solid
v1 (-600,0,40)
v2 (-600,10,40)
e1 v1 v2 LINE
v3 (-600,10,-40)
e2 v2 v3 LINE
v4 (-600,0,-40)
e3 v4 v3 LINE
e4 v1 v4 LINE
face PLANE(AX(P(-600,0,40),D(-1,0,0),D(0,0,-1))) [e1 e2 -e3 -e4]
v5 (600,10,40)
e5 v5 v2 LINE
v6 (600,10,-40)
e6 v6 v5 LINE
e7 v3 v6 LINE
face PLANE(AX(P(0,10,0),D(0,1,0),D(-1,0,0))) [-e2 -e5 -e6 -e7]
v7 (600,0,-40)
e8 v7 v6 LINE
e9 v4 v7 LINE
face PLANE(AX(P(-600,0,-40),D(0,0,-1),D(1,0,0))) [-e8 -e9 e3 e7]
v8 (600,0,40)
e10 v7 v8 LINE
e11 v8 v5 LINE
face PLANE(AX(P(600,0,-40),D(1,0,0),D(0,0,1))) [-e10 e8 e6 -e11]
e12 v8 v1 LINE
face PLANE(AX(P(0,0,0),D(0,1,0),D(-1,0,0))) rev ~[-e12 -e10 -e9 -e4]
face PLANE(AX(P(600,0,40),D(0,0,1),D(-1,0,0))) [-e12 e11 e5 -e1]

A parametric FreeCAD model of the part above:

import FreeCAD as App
import Part
import Sketcher
Q = App.Units.Quantity

doc = App.newDocument("Part")
params = doc.addObject("Spreadsheet::Sheet", "Params")
for row, (alias, value) in enumerate([
    ("sketch1_width", "1200 mm"),
    ("sketch1_height", "80 mm"),
    ("pad1_length", "10 mm"),
], start=1):
    params.set(f"A{row}", alias)
    params.set(f"B{row}", "=" + value)
    params.setAlias(f"B{row}", alias)

body = doc.addObject("PartDesign::Body", "Body")

# Sketch on XZ plane
sketch1 = body.newObject("Sketcher::SketchObject", "Sketch")
sketch1.AttachmentSupport = (doc.getObject("XZ_Plane"), [""])
sketch1.MapMode = "FlatFace"
sketch1.addGeometry(Part.LineSegment(App.Vector(600, -40, 0), App.Vector(-600, -40, 0)), False)
sketch1.addGeometry(Part.LineSegment(App.Vector(-600, -40, 0), App.Vector(-600, 40, 0)), False)
sketch1.addGeometry(Part.LineSegment(App.Vector(-600, 40, 0), App.Vector(600, 40, 0)), False)
sketch1.addGeometry(Part.LineSegment(App.Vector(600, 40, 0), App.Vector(600, -40, 0)), False)
sketch1.addConstraint(Sketcher.Constraint("Coincident", 0, 2, 1, 1))
sketch1.addConstraint(Sketcher.Constraint("Coincident", 1, 2, 2, 1))
sketch1.addConstraint(Sketcher.Constraint("Coincident", 2, 2, 3, 1))
sketch1.addConstraint(Sketcher.Constraint("Coincident", 3, 2, 0, 1))
sketch1.addConstraint(Sketcher.Constraint("Horizontal", 0))
sketch1.addConstraint(Sketcher.Constraint("Vertical", 1))
sketch1.addConstraint(Sketcher.Constraint("Horizontal", 2))
sketch1.addConstraint(Sketcher.Constraint("Vertical", 3))
sketch1.addConstraint(Sketcher.Constraint("Symmetric", 0, 2, 2, 2, -1, 1))
sketch1.addConstraint(Sketcher.Constraint("DistanceX", 0, 2, 0, 1, Q("1200 mm")))
sketch1.addConstraint(Sketcher.Constraint("DistanceY", 1, 1, 1, 2, Q("80 mm")))
sketch1.setExpression("Constraints[9]", "Params.sketch1_width")
sketch1.setExpression("Constraints[10]", "Params.sketch1_height")
pad1 = body.newObject("PartDesign::Pad", "Pad")
pad1.Profile = sketch1
pad1.setExpression("Length", "Params.pad1_length")
pad1.Reversed = True

doc.recompute()
